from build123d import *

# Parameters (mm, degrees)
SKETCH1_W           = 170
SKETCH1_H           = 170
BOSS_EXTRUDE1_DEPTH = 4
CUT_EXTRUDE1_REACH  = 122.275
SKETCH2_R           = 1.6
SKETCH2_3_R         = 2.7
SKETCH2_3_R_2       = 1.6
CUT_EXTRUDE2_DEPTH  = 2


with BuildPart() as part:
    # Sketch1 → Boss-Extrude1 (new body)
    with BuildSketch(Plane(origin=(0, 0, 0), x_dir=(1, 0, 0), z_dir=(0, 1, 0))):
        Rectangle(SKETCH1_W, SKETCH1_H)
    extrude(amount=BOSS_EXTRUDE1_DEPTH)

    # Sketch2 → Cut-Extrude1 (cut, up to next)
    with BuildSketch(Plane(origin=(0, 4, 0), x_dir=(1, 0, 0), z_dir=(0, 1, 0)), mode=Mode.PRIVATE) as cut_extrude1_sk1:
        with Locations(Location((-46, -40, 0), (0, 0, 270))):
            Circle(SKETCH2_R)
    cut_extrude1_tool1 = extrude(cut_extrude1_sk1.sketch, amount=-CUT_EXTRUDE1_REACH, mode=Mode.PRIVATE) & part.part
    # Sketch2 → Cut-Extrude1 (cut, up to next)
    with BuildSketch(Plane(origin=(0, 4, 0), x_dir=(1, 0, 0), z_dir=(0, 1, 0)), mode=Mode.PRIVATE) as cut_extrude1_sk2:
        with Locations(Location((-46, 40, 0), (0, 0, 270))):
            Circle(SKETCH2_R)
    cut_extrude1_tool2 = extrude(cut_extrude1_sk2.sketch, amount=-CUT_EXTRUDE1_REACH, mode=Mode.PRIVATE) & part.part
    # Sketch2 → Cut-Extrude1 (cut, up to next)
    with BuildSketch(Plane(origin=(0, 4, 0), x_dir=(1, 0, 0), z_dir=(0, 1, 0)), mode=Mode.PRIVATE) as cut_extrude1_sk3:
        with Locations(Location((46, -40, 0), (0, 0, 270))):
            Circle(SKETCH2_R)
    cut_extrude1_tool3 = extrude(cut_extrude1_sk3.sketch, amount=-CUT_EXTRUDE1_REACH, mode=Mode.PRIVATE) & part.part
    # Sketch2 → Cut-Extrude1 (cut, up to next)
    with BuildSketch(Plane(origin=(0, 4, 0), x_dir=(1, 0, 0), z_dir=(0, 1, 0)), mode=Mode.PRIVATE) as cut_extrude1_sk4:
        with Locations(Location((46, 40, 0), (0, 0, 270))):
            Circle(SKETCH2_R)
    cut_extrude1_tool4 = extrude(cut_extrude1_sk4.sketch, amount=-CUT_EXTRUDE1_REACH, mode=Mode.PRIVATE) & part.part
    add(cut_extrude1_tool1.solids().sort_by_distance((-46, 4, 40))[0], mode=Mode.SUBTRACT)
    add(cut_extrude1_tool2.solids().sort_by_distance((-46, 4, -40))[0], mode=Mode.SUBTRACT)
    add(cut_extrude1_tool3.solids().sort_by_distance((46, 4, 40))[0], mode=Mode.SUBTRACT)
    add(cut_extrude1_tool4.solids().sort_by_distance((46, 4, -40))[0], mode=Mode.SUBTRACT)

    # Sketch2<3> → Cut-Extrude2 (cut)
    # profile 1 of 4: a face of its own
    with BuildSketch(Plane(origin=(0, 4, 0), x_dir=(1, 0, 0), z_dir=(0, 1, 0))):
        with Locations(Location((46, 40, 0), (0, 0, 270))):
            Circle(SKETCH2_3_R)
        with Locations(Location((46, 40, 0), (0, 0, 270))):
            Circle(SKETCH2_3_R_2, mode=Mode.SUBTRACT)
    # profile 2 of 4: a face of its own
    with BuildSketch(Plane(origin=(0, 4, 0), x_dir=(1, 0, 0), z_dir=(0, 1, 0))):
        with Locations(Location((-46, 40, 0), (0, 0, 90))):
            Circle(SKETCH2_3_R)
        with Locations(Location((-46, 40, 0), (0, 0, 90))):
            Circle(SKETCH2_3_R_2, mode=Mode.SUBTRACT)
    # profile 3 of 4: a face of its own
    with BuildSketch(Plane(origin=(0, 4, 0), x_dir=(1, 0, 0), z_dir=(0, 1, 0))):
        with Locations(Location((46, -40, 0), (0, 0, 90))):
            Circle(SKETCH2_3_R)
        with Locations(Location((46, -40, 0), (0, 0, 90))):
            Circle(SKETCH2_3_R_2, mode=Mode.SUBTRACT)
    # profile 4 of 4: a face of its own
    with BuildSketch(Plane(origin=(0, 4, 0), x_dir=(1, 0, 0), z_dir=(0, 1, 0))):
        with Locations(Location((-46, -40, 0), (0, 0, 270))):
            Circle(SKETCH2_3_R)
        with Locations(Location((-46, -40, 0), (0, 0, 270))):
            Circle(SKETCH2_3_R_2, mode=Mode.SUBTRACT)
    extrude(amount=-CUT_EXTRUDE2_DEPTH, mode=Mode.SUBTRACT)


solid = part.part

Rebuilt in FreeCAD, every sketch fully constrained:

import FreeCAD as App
import Part
import Sketcher

V = App.Vector


def add_polygon(sketch, points):
    """Adds a closed chain of lines whose ends are joined by coincident constraints."""
    first, n = sketch.GeometryCount, len(points)
    for a, b in zip(points, points[1:] + points[:1]):
        sketch.addGeometry(Part.LineSegment(App.Vector(*a, 0), App.Vector(*b, 0)), False)
    for i in range(n):
        sketch.addConstraint(Sketcher.Constraint("Coincident", first + i, 2, first + (i + 1) % n, 1))

doc = App.newDocument("Part")
params = doc.addObject("Spreadsheet::Sheet", "Params")
for row, (alias, value) in enumerate([
    ("sketch1_width", "170 mm"),
    ("pad1_length", "4 mm"),
    ("sketch2_diameter", "3.2 mm"),
    ("sketch3_diameter", "3.2 mm"),
    ("sketch4_diameter", "3.2 mm"),
    ("sketch5_diameter", "3.2 mm"),
    ("sketch6_diameter", "5.4 mm"),
    ("sketch6_diameter2", "3.2 mm"),
    ("pocket5_length", "2 mm"),
], start=1):
    params.set(f"A{row}", alias)
    params.set(f"B{row}", "=" + value)
    params.setAlias(f"B{row}", alias)

body = doc.addObject("PartDesign::Body", "Body")

# Sketch on XZ plane
sketch1 = doc.addObject("Sketcher::SketchObject", "Sketch")
body.addObject(sketch1)
sketch1.AttachmentSupport = (doc.XZ_Plane, [""])
sketch1.MapMode = "FlatFace"
add_polygon(sketch1, [(-85, -85), (-85, 85), (85, 85), (85, -85)])  # lines 0-3
sketch1.addConstraint([
    Sketcher.Constraint("Vertical", 0),
    Sketcher.Constraint("Horizontal", 1),
    Sketcher.Constraint("Vertical", 2),
    Sketcher.Constraint("Horizontal", 3),
    Sketcher.Constraint("Symmetric", 0, 2, 2, 2, -1, 1),
    Sketcher.Constraint("Equal", 3, 0),
    Sketcher.Constraint("DistanceX", 1, 1, 1, 2, 170.0),
])
sketch1.setExpression("Constraints[10]", "Params.sketch1_width")
pad1 = doc.addObject("PartDesign::Pad", "Pad")
body.addObject(pad1)
pad1.Profile = sketch1
pad1.setExpression("Length", "Params.pad1_length")
pad1.Reversed = True

# Sketch on XZ plane
sketch2 = doc.addObject("Sketcher::SketchObject", "Sketch001")
body.addObject(sketch2)
sketch2.AttachmentSupport = (doc.XZ_Plane, [""])
sketch2.MapMode = "FlatFace"
sketch2.AttachmentOffset = App.Placement(V(0, 0, -4), App.Rotation())
sketch2.addGeometry(Part.Circle(V(-46, 40, 0), V(0, 0, 1), 1.6), False)
sketch2.addConstraint([
    Sketcher.Constraint("Diameter", 0, 3.2),
    Sketcher.Constraint("DistanceX", 0, 3, -1, 1, 46.0),
    Sketcher.Constraint("DistanceY", -1, 1, 0, 3, 40.0),
])
sketch2.setExpression("Constraints[0]", "Params.sketch2_diameter")
pocket1 = doc.addObject("PartDesign::Pocket", "Pocket")
body.addObject(pocket1)
pocket1.Profile = sketch2
pocket1.Type = "UpToFirst"
pocket1.Reversed = True

# Sketch on XZ plane
sketch3 = doc.addObject("Sketcher::SketchObject", "Sketch002")
body.addObject(sketch3)
sketch3.AttachmentSupport = (doc.XZ_Plane, [""])
sketch3.MapMode = "FlatFace"
sketch3.AttachmentOffset = App.Placement(V(0, 0, -4), App.Rotation())
sketch3.addGeometry(Part.Circle(V(-46, -40, 0), V(0, 0, 1), 1.6), False)
sketch3.addConstraint([
    Sketcher.Constraint("Diameter", 0, 3.2),
    Sketcher.Constraint("DistanceX", 0, 3, -1, 1, 46.0),
    Sketcher.Constraint("DistanceY", 0, 3, -1, 1, 40.0),
])
sketch3.setExpression("Constraints[0]", "Params.sketch3_diameter")
pocket2 = doc.addObject("PartDesign::Pocket", "Pocket001")
body.addObject(pocket2)
pocket2.Profile = sketch3
pocket2.Type = "UpToFirst"
pocket2.Reversed = True

# Sketch on XZ plane
sketch4 = doc.addObject("Sketcher::SketchObject", "Sketch003")
body.addObject(sketch4)
sketch4.AttachmentSupport = (doc.XZ_Plane, [""])
sketch4.MapMode = "FlatFace"
sketch4.AttachmentOffset = App.Placement(V(0, 0, -4), App.Rotation())
sketch4.addGeometry(Part.Circle(V(46, 40, 0), V(0, 0, 1), 1.6), False)
sketch4.addConstraint([
    Sketcher.Constraint("Diameter", 0, 3.2),
    Sketcher.Constraint("DistanceX", -1, 1, 0, 3, 46.0),
    Sketcher.Constraint("DistanceY", -1, 1, 0, 3, 40.0),
])
sketch4.setExpression("Constraints[0]", "Params.sketch4_diameter")
pocket3 = doc.addObject("PartDesign::Pocket", "Pocket002")
body.addObject(pocket3)
pocket3.Profile = sketch4
pocket3.Type = "UpToFirst"
pocket3.Reversed = True

# Sketch on XZ plane
sketch5 = doc.addObject("Sketcher::SketchObject", "Sketch004")
body.addObject(sketch5)
sketch5.AttachmentSupport = (doc.XZ_Plane, [""])
sketch5.MapMode = "FlatFace"
sketch5.AttachmentOffset = App.Placement(V(0, 0, -4), App.Rotation())
sketch5.addGeometry(Part.Circle(V(46, -40, 0), V(0, 0, 1), 1.6), False)
sketch5.addConstraint([
    Sketcher.Constraint("Diameter", 0, 3.2),
    Sketcher.Constraint("DistanceX", -1, 1, 0, 3, 46.0),
    Sketcher.Constraint("DistanceY", 0, 3, -1, 1, 40.0),
])
sketch5.setExpression("Constraints[0]", "Params.sketch5_diameter")
pocket4 = doc.addObject("PartDesign::Pocket", "Pocket003")
body.addObject(pocket4)
pocket4.Profile = sketch5
pocket4.Type = "UpToFirst"
pocket4.Reversed = True

# Sketch on XZ plane
sketch6 = doc.addObject("Sketcher::SketchObject", "Sketch005")
body.addObject(sketch6)
sketch6.AttachmentSupport = (doc.XZ_Plane, [""])
sketch6.MapMode = "FlatFace"
sketch6.AttachmentOffset = App.Placement(V(0, 0, -4), App.Rotation())
sketch6.addGeometry([
    Part.Circle(V(46, -40, 0), V(0, 0, 1), 2.7),  # 0
    Part.Circle(V(46, -40, 0), V(0, 0, 1), 1.6),  # 1
    Part.Circle(V(-46, -40, 0), V(0, 0, 1), 2.7),  # 2
    Part.Circle(V(-46, -40, 0), V(0, 0, 1), 1.6),  # 3
    Part.Circle(V(46, 40, 0), V(0, 0, 1), 2.7),  # 4
    Part.Circle(V(46, 40, 0), V(0, 0, 1), 1.6),  # 5
    Part.Circle(V(-46, 40, 0), V(0, 0, 1), 2.7),  # 6
    Part.Circle(V(-46, 40, 0), V(0, 0, 1), 1.6),  # 7
], False)
sketch6.addConstraint([
    Sketcher.Constraint("Coincident", 1, 3, 0, 3),
    Sketcher.Constraint("Coincident", 3, 3, 2, 3),
    Sketcher.Constraint("Coincident", 5, 3, 4, 3),
    Sketcher.Constraint("Coincident", 7, 3, 6, 3),
    Sketcher.Constraint("Equal", 0, 2),
    Sketcher.Constraint("Equal", 1, 3),
    Sketcher.Constraint("Equal", 2, 4),
    Sketcher.Constraint("Equal", 3, 5),
    Sketcher.Constraint("Equal", 4, 6),
    Sketcher.Constraint("Equal", 5, 7),
    Sketcher.Constraint("Symmetric", 2, 3, 4, 3, -1, 1),
    Sketcher.Constraint("Symmetric", 0, 3, 6, 3, -1, 1),
    Sketcher.Constraint("Symmetric", 0, 3, 2, 3, -2),
    Sketcher.Constraint("Diameter", 0, 5.4),
    Sketcher.Constraint("Diameter", 1, 3.2),
    Sketcher.Constraint("DistanceX", -1, 1, 0, 3, 46.0),
    Sketcher.Constraint("DistanceY", 0, 3, -1, 1, 40.0),
])
sketch6.setExpression("Constraints[13]", "Params.sketch6_diameter")
sketch6.setExpression("Constraints[14]", "Params.sketch6_diameter2")
pocket5 = doc.addObject("PartDesign::Pocket", "Pocket004")
body.addObject(pocket5)
pocket5.Profile = sketch6
pocket5.setExpression("Length", "Params.pocket5_length")
pocket5.Reversed = True

doc.recompute()
